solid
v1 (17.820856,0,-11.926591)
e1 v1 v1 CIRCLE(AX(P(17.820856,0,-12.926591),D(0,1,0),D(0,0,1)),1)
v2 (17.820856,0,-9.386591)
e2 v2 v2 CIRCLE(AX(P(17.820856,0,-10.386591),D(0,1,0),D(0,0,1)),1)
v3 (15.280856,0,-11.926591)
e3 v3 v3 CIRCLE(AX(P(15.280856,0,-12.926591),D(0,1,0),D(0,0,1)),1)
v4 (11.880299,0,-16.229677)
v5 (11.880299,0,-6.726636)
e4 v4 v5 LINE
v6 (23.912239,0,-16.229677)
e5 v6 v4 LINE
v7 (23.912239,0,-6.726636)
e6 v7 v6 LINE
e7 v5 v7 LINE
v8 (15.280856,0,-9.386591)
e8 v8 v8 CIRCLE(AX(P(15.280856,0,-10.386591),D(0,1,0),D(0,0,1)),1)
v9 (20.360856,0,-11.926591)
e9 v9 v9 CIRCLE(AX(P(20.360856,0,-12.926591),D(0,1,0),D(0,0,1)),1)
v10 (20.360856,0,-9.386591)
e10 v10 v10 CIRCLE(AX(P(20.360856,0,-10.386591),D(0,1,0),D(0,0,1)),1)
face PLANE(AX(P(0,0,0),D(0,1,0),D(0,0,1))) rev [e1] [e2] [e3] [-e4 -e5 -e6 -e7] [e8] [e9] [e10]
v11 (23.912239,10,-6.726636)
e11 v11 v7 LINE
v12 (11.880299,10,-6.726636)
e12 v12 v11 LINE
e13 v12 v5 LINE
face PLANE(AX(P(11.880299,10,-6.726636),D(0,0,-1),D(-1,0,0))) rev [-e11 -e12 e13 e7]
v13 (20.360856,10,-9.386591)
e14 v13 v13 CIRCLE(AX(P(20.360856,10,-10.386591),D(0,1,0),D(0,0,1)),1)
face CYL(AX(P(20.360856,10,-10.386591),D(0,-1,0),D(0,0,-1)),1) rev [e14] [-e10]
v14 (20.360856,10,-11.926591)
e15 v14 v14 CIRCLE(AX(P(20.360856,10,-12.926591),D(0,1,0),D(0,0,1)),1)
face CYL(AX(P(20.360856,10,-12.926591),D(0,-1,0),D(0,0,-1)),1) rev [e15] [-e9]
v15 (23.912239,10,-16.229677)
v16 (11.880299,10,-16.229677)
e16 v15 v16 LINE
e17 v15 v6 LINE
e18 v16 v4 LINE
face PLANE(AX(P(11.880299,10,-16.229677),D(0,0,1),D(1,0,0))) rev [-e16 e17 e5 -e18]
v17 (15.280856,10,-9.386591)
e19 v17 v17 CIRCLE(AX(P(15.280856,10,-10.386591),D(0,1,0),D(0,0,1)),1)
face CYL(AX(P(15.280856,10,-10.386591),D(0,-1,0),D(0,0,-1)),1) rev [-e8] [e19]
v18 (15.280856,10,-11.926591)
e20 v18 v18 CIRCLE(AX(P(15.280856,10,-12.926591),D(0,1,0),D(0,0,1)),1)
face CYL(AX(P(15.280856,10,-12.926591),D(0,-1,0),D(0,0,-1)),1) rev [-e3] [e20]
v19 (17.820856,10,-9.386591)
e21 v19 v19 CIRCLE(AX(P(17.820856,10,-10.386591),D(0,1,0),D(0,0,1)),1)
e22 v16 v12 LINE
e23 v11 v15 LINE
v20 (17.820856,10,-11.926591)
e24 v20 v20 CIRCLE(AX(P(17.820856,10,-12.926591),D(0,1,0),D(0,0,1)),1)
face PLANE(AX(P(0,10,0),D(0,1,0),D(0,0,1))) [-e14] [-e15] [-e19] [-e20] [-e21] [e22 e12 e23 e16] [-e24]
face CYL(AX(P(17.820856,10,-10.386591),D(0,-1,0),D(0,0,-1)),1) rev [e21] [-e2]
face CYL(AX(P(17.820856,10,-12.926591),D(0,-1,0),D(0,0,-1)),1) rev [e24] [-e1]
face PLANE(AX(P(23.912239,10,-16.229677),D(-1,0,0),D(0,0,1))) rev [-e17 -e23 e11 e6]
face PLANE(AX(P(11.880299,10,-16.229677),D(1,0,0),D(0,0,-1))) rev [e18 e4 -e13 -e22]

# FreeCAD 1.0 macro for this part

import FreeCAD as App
import Part
import Sketcher

V = App.Vector
Q = App.Units.Quantity

doc = App.newDocument("Part")
body = doc.addObject("PartDesign::Body", "Body")

sketch1 = doc.addObject("Sketcher::SketchObject", "Sketch")
body.addObject(sketch1)
sketch1.AttachmentSupport = (doc.XZ_Plane, [""])
sketch1.MapMode = "FlatFace"
sketch1.addGeometry([
    Part.LineSegment(V(11.9, -16.2, 0), V(11.9, -6.7, 0)),
    Part.LineSegment(V(11.9, -6.7, 0), V(23.9, -6.7, 0)),
    Part.LineSegment(V(23.9, -6.7, 0), V(23.9, -16.2, 0)),
    Part.LineSegment(V(23.9, -16.2, 0), V(11.9, -16.2, 0)),
    Part.Circle(V(15.3, -10.4, 0), V(0, 0, 1), 1),
    Part.Circle(V(17.8, -10.4, 0), V(0, 0, 1), 1),
    Part.Circle(V(20.4, -10.4, 0), V(0, 0, 1), 1),
    Part.Circle(V(15.3, -12.9, 0), V(0, 0, 1), 1),
    Part.Circle(V(17.8, -12.9, 0), V(0, 0, 1), 1),
    Part.Circle(V(20.4, -12.9, 0), V(0, 0, 1), 1),
], False)
sketch1.addConstraint([
    Sketcher.Constraint("Coincident", 0, 2, 1, 1),
    Sketcher.Constraint("Coincident", 1, 2, 2, 1),
    Sketcher.Constraint("Coincident", 2, 2, 3, 1),
    Sketcher.Constraint("Coincident", 3, 2, 0, 1),
    Sketcher.Constraint("Vertical", 0),
    Sketcher.Constraint("Horizontal", 1),
    Sketcher.Constraint("Vertical", 2),
    Sketcher.Constraint("Horizontal", 3),
    Sketcher.Constraint("Equal", 4, 5),
    Sketcher.Constraint("Equal", 5, 6),
    Sketcher.Constraint("Equal", 6, 7),
    Sketcher.Constraint("Equal", 7, 8),
    Sketcher.Constraint("Equal", 8, 9),
    Sketcher.Constraint("Horizontal", 4, 3, 5, 3),
    Sketcher.Constraint("Horizontal", 5, 3, 6, 3),
    Sketcher.Constraint("Horizontal", 7, 3, 8, 3),
    Sketcher.Constraint("Horizontal", 8, 3, 9, 3),
    Sketcher.Constraint("Vertical", 4, 3, 7, 3),
    Sketcher.Constraint("Vertical", 5, 3, 8, 3),
    Sketcher.Constraint("Vertical", 6, 3, 9, 3),
    Sketcher.Constraint("Diameter", 4, Q("2 mm")),
    Sketcher.Constraint("DistanceX", 4, 3, 5, 3, Q("2.54 mm")),
    Sketcher.Constraint("DistanceX", 5, 3, 6, 3, Q("2.54 mm")),
    Sketcher.Constraint("DistanceY", 7, 3, 4, 3, Q("2.54 mm")),
    Sketcher.Constraint("DistanceX", 1, 1, 1, 2, Q("12.03194 mm")),
    Sketcher.Constraint("DistanceY", 0, 1, 0, 2, Q("9.503041 mm")),
    Sketcher.Constraint("DistanceX", -1, 1, 0, 2, Q("11.880299 mm")),
    Sketcher.Constraint("DistanceY", 4, 3, -1, 1, Q("10.386591 mm")),
    Sketcher.Constraint("DistanceX", -1, 1, 4, 3, Q("15.280856 mm")),
    Sketcher.Constraint("DistanceY", 0, 2, -1, 1, Q("6.726636 mm")),
])
pad1 = doc.addObject("PartDesign::Pad", "Pad")
body.addObject(pad1)
pad1.Profile = sketch1
pad1.Length = 10
pad1.Reversed = True

doc.recompute()
